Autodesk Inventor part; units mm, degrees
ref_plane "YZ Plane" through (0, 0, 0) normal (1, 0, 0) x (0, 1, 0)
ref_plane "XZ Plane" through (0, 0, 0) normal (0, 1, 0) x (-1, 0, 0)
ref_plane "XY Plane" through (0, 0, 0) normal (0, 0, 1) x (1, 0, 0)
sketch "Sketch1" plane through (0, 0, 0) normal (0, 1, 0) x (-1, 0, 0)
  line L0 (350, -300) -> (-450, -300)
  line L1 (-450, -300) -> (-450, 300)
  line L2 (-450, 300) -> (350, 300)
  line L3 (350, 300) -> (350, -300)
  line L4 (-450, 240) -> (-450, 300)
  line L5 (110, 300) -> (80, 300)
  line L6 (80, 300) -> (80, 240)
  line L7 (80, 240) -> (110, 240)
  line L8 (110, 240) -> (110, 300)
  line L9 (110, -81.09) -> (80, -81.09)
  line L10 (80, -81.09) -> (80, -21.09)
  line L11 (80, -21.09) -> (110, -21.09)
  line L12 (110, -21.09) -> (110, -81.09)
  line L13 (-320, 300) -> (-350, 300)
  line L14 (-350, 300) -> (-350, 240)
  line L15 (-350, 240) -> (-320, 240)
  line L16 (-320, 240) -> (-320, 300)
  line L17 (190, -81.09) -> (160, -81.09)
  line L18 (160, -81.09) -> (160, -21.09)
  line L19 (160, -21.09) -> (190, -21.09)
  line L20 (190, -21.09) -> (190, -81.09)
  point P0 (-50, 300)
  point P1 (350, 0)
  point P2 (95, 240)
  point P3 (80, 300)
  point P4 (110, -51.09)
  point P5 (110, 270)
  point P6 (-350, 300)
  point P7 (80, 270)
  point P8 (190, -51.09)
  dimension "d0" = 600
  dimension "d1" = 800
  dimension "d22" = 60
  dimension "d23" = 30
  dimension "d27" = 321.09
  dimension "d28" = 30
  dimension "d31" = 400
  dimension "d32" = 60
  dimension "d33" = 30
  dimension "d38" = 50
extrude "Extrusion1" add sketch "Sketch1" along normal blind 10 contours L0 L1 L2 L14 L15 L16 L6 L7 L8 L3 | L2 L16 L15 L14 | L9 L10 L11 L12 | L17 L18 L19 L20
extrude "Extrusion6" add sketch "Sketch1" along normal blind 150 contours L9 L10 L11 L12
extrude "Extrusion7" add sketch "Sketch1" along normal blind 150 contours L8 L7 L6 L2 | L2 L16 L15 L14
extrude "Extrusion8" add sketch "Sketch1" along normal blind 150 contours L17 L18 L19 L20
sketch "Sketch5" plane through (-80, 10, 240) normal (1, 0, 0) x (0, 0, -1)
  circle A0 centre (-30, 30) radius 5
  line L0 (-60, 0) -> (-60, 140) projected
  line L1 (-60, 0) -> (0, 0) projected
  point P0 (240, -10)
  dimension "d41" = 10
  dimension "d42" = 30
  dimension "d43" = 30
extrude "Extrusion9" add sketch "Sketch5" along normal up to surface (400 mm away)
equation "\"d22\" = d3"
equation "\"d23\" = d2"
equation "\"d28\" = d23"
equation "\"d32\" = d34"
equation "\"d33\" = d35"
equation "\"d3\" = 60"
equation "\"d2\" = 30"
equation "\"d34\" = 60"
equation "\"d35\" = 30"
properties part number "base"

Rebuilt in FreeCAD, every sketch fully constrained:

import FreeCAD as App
import Part
import Sketcher
from FreeCAD import Vector


def add_polygon(sketch, points):
    """Adds a closed chain of lines whose ends are joined by coincident constraints."""
    first, n = sketch.GeometryCount, len(points)
    for a, b in zip(points, points[1:] + points[:1]):
        sketch.addGeometry(Part.LineSegment(App.Vector(*a, 0), App.Vector(*b, 0)), False)
    for i in range(n):
        sketch.addConstraint(Sketcher.Constraint("Coincident", first + i, 2, first + (i + 1) % n, 1))

doc = App.newDocument("Part")
params = doc.addObject("Spreadsheet::Sheet", "Params")
for row, (alias, value) in enumerate([
    ("sketch1_width", "800 mm"),
    ("sketch1_width2", "30 mm"),
    ("sketch1_height", "600 mm"),
    ("sketch1_height2", "60 mm"),
    ("sketch1_width3", "240 mm"),
    ("pad1_length", "10 mm"),
    ("sketch2_width", "30 mm"),
    ("sketch2_height", "60 mm"),
    ("pad2_length", "150 mm"),
    ("sketch3_width", "30 mm"),
    ("sketch3_height", "60 mm"),
    ("pad3_length", "150 mm"),
    ("sketch4_width", "30 mm"),
    ("sketch4_height", "60 mm"),
    ("pad4_length", "150 mm"),
    ("sketch5_diameter", "10 mm"),
    ("pad5_length", "400 mm"),
], start=1):
    params.set(f"A{row}", alias)
    params.set(f"B{row}", "=" + value)
    params.setAlias(f"B{row}", alias)

body = doc.addObject("PartDesign::Body", "Body")

# Sketch on XZ plane
sketch1 = body.newObject("Sketcher::SketchObject", "Sketch")
sketch1.AttachmentSupport = (doc.getObject("XZ_Plane"), [""])
sketch1.MapMode = "FlatFace"
add_polygon(sketch1, [(450, -300), (-350, -300), (-350, 300), (-110, 300), (-110, 240), (-80, 240), (-80, 300), (450, 300)])  # lines 0-7
sketch1.addConstraint(Sketcher.Constraint("Horizontal", 0))
sketch1.addConstraint(Sketcher.Constraint("Vertical", 1))
sketch1.addConstraint(Sketcher.Constraint("Horizontal", 2))
sketch1.addConstraint(Sketcher.Constraint("Vertical", 3))
sketch1.addConstraint(Sketcher.Constraint("Horizontal", 4))
sketch1.addConstraint(Sketcher.Constraint("Vertical", 5))
sketch1.addConstraint(Sketcher.Constraint("Horizontal", 6))
sketch1.addConstraint(Sketcher.Constraint("Vertical", 7))
sketch1.addConstraint(Sketcher.Constraint("Horizontal", 2, 2, 5, 2))
sketch1.addConstraint(Sketcher.Constraint("DistanceX", 0, 2, 0, 1, 800.0))
sketch1.addConstraint(Sketcher.Constraint("DistanceX", 4, 1, 4, 2, 30.0))
sketch1.addConstraint(Sketcher.Constraint("DistanceY", 1, 1, 1, 2, 600.0))
sketch1.addConstraint(Sketcher.Constraint("DistanceY", 3, 2, 3, 1, 60.0))
sketch1.addConstraint(Sketcher.Constraint("DistanceX", 2, 1, 2, 2, 240.0))
sketch1.addConstraint(Sketcher.Constraint("DistanceX", 0, 2, -1, 1, 350.0))
sketch1.addConstraint(Sketcher.Constraint("DistanceY", 0, 2, -1, 1, 300.0))
sketch1.setExpression("Constraints[17]", "Params.sketch1_width")
sketch1.setExpression("Constraints[18]", "Params.sketch1_width2")
sketch1.setExpression("Constraints[19]", "Params.sketch1_height")
sketch1.setExpression("Constraints[20]", "Params.sketch1_height2")
sketch1.setExpression("Constraints[21]", "Params.sketch1_width3")
pad1 = body.newObject("PartDesign::Pad", "Pad")
pad1.Profile = sketch1
pad1.setExpression("Length", "Params.pad1_length")
pad1.Reversed = True

# Sketch on XZ plane
sketch2 = body.newObject("Sketcher::SketchObject", "Sketch001")
sketch2.AttachmentSupport = (doc.getObject("XZ_Plane"), [""])
sketch2.MapMode = "FlatFace"
add_polygon(sketch2, [(-80, -81.09), (-110, -81.09), (-110, -21.09), (-80, -21.09)])  # lines 0-3
sketch2.addConstraint(Sketcher.Constraint("Horizontal", 0))
sketch2.addConstraint(Sketcher.Constraint("Vertical", 1))
sketch2.addConstraint(Sketcher.Constraint("Horizontal", 2))
sketch2.addConstraint(Sketcher.Constraint("Vertical", 3))
sketch2.addConstraint(Sketcher.Constraint("DistanceX", 0, 2, 0, 1, 30.0))
sketch2.addConstraint(Sketcher.Constraint("DistanceY", 1, 1, 1, 2, 60.0))
sketch2.addConstraint(Sketcher.Constraint("DistanceX", 0, 2, -1, 1, 110.0))
sketch2.addConstraint(Sketcher.Constraint("DistanceY", 0, 2, -1, 1, 81.09))
sketch2.setExpression("Constraints[8]", "Params.sketch2_width")
sketch2.setExpression("Constraints[9]", "Params.sketch2_height")
pad2 = body.newObject("PartDesign::Pad", "Pad001")
pad2.Profile = sketch2
pad2.setExpression("Length", "Params.pad2_length")
pad2.Reversed = True

# Sketch on XZ plane
sketch3 = body.newObject("Sketcher::SketchObject", "Sketch002")
sketch3.AttachmentSupport = (doc.getObject("XZ_Plane"), [""])
sketch3.MapMode = "FlatFace"
add_polygon(sketch3, [(-110, 240), (-110, 300), (-80, 300), (-80, 240)])  # lines 0-3
add_polygon(sketch3, [(320, 300), (350, 300), (350, 240), (320, 240)])  # lines 4-7
sketch3.addConstraint(Sketcher.Constraint("Vertical", 0))
sketch3.addConstraint(Sketcher.Constraint("Horizontal", 1))
sketch3.addConstraint(Sketcher.Constraint("Vertical", 2))
sketch3.addConstraint(Sketcher.Constraint("Horizontal", 3))
sketch3.addConstraint(Sketcher.Constraint("Horizontal", 4))
sketch3.addConstraint(Sketcher.Constraint("Vertical", 5))
sketch3.addConstraint(Sketcher.Constraint("Horizontal", 6))
sketch3.addConstraint(Sketcher.Constraint("Vertical", 7))
sketch3.addConstraint(Sketcher.Constraint("Horizontal", 1, 2, 4, 2))
sketch3.addConstraint(Sketcher.Constraint("Horizontal", 3, 2, 5, 2))
sketch3.addConstraint(Sketcher.Constraint("Equal", 3, 4))
sketch3.addConstraint(Sketcher.Constraint("DistanceX", 1, 1, 1, 2, 30.0))
sketch3.addConstraint(Sketcher.Constraint("DistanceY", 0, 1, 0, 2, 60.0))
sketch3.addConstraint(Sketcher.Constraint("DistanceX", 2, 2, 6, 2, 400.0))
sketch3.addConstraint(Sketcher.Constraint("DistanceX", 0, 2, -1, 1, 110.0))
sketch3.addConstraint(Sketcher.Constraint("DistanceY", -1, 1, 0, 2, 300.0))
sketch3.setExpression("Constraints[19]", "Params.sketch3_width")
sketch3.setExpression("Constraints[20]", "Params.sketch3_height")
pad3 = body.newObject("PartDesign::Pad", "Pad002")
pad3.Profile = sketch3
pad3.setExpression("Length", "Params.pad3_length")
pad3.Reversed = True

# Sketch on XZ plane
sketch4 = body.newObject("Sketcher::SketchObject", "Sketch003")
sketch4.AttachmentSupport = (doc.getObject("XZ_Plane"), [""])
sketch4.MapMode = "FlatFace"
add_polygon(sketch4, [(-160, -81.09), (-190, -81.09), (-190, -21.09), (-160, -21.09)])  # lines 0-3
sketch4.addConstraint(Sketcher.Constraint("Horizontal", 0))
sketch4.addConstraint(Sketcher.Constraint("Vertical", 1))
sketch4.addConstraint(Sketcher.Constraint("Horizontal", 2))
sketch4.addConstraint(Sketcher.Constraint("Vertical", 3))
sketch4.addConstraint(Sketcher.Constraint("DistanceX", 0, 2, 0, 1, 30.0))
sketch4.addConstraint(Sketcher.Constraint("DistanceY", 1, 1, 1, 2, 60.0))
sketch4.addConstraint(Sketcher.Constraint("DistanceX", 0, 2, -1, 1, 190.0))
sketch4.addConstraint(Sketcher.Constraint("DistanceY", 0, 2, -1, 1, 81.09))
sketch4.setExpression("Constraints[8]", "Params.sketch4_width")
sketch4.setExpression("Constraints[9]", "Params.sketch4_height")
pad4 = body.newObject("PartDesign::Pad", "Pad003")
pad4.Profile = sketch4
pad4.setExpression("Length", "Params.pad4_length")
pad4.Reversed = True

# Sketch on YZ plane
sketch5 = body.newObject("Sketcher::SketchObject", "Sketch004")
sketch5.AttachmentSupport = (doc.getObject("YZ_Plane"), [""])
sketch5.MapMode = "FlatFace"
sketch5.AttachmentOffset = App.Placement(Vector(0, 0, -80), App.Rotation())
sketch5.addGeometry(Part.Circle(Vector(40, 270, 0), Vector(0, 0, 1), 5), False)
sketch5.addConstraint(Sketcher.Constraint("Diameter", 0, 10.0))
sketch5.addConstraint(Sketcher.Constraint("DistanceX", -1, 1, 0, 3, 40.0))
sketch5.addConstraint(Sketcher.Constraint("DistanceY", -1, 1, 0, 3, 270.0))
sketch5.setExpression("Constraints[0]", "Params.sketch5_diameter")
pad5 = body.newObject("PartDesign::Pad", "Pad004")
pad5.Profile = sketch5
pad5.setExpression("Length", "Params.pad5_length")

doc.recompute()
